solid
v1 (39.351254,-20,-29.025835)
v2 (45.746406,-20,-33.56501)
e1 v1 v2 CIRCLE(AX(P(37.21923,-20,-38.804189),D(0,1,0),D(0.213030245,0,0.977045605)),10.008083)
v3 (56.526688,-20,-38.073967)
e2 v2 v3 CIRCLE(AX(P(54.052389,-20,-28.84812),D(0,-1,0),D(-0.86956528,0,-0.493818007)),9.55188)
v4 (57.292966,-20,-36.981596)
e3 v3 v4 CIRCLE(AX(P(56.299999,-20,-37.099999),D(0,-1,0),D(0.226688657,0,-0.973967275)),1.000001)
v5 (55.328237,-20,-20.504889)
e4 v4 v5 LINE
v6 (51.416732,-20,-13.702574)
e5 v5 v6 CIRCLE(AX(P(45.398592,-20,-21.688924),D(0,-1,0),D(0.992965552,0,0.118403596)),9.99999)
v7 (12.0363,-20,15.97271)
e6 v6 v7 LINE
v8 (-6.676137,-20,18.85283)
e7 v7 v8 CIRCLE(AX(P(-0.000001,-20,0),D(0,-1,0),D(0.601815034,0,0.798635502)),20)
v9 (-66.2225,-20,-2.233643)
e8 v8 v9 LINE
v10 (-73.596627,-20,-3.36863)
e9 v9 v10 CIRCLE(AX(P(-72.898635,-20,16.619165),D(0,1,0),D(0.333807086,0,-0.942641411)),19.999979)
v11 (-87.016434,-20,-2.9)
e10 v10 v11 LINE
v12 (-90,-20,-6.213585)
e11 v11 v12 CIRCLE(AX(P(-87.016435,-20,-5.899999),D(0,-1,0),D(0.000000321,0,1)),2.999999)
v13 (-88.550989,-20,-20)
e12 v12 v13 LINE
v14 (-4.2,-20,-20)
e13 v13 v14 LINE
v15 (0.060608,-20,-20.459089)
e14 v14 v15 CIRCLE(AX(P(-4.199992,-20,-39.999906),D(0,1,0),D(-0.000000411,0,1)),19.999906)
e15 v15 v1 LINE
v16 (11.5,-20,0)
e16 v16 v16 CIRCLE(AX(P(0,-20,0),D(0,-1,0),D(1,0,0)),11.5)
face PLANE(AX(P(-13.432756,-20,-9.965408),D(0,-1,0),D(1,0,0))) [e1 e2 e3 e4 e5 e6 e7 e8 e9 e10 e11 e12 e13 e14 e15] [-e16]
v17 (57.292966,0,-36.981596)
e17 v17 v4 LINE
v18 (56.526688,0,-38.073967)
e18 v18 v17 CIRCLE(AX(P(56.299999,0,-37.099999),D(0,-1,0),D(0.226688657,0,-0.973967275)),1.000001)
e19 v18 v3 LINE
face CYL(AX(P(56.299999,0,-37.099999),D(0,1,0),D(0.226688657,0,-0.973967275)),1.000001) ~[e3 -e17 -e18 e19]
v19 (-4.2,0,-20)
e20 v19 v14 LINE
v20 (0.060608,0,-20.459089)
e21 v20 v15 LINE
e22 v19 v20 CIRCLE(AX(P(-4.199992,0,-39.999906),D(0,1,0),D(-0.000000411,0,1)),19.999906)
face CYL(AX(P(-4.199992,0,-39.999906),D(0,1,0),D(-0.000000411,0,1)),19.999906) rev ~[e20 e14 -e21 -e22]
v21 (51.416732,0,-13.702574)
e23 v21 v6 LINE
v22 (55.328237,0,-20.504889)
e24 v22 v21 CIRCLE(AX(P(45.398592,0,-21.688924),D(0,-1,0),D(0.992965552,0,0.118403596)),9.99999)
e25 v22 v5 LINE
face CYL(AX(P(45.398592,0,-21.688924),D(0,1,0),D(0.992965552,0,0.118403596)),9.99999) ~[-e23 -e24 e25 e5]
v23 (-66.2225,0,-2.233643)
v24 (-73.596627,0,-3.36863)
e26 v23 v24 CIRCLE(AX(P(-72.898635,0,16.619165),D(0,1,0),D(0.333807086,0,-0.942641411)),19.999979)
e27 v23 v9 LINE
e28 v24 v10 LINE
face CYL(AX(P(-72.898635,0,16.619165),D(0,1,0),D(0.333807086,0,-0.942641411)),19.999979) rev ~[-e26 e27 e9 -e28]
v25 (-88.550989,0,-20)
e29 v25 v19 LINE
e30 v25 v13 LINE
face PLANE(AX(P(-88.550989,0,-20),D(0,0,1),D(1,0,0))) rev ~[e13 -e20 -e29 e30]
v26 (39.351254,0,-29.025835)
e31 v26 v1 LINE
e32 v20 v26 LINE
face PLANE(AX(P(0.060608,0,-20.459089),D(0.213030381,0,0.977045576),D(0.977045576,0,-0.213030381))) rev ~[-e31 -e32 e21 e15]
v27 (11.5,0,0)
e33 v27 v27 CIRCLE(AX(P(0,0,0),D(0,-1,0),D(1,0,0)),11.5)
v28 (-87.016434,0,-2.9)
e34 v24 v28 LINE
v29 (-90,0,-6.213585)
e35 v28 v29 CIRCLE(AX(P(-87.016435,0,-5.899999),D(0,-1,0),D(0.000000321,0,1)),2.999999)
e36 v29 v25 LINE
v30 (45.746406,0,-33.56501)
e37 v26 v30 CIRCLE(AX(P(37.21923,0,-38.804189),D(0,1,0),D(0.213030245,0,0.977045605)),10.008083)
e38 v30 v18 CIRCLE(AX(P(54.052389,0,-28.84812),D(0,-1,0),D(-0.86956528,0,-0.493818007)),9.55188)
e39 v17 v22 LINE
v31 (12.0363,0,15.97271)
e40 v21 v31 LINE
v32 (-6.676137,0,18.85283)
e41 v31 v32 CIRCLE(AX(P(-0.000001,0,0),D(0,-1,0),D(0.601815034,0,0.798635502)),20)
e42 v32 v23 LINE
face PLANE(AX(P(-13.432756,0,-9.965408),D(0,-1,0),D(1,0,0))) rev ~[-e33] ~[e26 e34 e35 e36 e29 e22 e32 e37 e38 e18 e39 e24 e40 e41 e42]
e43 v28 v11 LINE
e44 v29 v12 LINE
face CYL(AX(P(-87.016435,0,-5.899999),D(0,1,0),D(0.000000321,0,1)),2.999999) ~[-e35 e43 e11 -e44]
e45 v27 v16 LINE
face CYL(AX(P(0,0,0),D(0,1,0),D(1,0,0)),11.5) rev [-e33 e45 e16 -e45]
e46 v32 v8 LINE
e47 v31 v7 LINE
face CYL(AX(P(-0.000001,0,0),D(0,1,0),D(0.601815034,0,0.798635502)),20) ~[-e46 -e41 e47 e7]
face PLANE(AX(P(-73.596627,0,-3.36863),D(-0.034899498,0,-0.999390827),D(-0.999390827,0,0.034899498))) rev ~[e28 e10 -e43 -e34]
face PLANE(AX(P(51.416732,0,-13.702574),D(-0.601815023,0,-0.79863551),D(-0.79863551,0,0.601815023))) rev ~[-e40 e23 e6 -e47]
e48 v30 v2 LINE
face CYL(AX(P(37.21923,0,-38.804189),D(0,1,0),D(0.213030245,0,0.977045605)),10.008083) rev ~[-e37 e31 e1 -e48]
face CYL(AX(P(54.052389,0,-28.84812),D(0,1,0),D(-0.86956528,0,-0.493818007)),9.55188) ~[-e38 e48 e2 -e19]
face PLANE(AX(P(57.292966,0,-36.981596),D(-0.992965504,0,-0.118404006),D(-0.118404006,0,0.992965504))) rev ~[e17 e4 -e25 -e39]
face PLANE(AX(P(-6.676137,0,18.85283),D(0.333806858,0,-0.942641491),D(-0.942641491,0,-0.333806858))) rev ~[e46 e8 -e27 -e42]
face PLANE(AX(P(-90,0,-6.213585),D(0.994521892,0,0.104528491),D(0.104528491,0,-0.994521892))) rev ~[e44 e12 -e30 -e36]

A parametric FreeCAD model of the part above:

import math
import FreeCAD as App
import Part
import Sketcher

V = App.Vector

doc = App.newDocument("Part")
body = doc.addObject("PartDesign::Body", "Body")

# Sketch on XZ plane
sketch1 = body.newObject("Sketcher::SketchObject", "Sketch")
sketch1.AttachmentSupport = (doc.getObject("XZ_Plane"), [""])
sketch1.MapMode = "FlatFace"
sketch1.addGeometry(Part.ArcOfCircle(Part.Circle(V(-0.000001, 0, 0), V(0, 0, 1), 20), math.radians(52.999999), math.radians(109.499998)), False)
sketch1.addGeometry(Part.LineSegment(V(-6.676137, 18.85283, 0), V(-66.2225, -2.233643, 0)), False)
sketch1.addGeometry(Part.ArcOfCircle(Part.Circle(V(-72.898635, 16.619165, 0), V(0, 0, 1), 19.999979), math.radians(-92.000009), math.radians(-70.499986)), False)
sketch1.addGeometry(Part.LineSegment(V(-73.596627, -3.36863, 0), V(-87.016434, -2.9, 0)), False)
sketch1.addGeometry(Part.ArcOfCircle(Part.Circle(V(-87.016435, -5.899999, 0), V(0, 0, 1), 2.999999), math.radians(89.999982), math.radians(186.000006)), False)
sketch1.addGeometry(Part.LineSegment(V(-90, -6.213585, 0), V(-88.550989, -20, 0)), False)
sketch1.addGeometry(Part.LineSegment(V(-88.550989, -20, 0), V(-4.2, -20, 0)), False)
sketch1.addGeometry(Part.ArcOfCircle(Part.Circle(V(-4.199992, -39.999906, 0), V(0, 0, 1), 19.999906), math.radians(77.699964), math.radians(90.000024)), False)
sketch1.addGeometry(Part.LineSegment(V(0.060608, -20.459089, 0), V(39.351254, -29.025835, 0)), False)
sketch1.addGeometry(Part.ArcOfCircle(Part.Circle(V(37.21923, -38.804189, 0), V(0, 0, 1), 10.008083), math.radians(31.566965), math.radians(77.700008)), False)
sketch1.addGeometry(Part.ArcOfCircle(Part.Circle(V(54.052389, -28.84812, 0), V(0, 0, 1), 9.55188), math.radians(-150.408161), math.radians(-74.98702)), False)
sketch1.addGeometry(Part.ArcOfCircle(Part.Circle(V(56.299999, -37.099999, 0), V(0, 0, 1), 1.000001), math.radians(-76.897803), math.radians(6.799907)), False)
sketch1.addGeometry(Part.LineSegment(V(57.292966, -36.981596, 0), V(55.328237, -20.504889, 0)), False)
sketch1.addGeometry(Part.ArcOfCircle(Part.Circle(V(45.398592, -21.688924, 0), V(0, 0, 1), 9.99999), math.radians(6.799979), math.radians(53.000026)), False)
sketch1.addGeometry(Part.LineSegment(V(51.416732, -13.702574, 0), V(12.0363, 15.97271, 0)), False)
sketch1.addGeometry(Part.Circle(V(0, 0, 0), V(0, 0, 1), 11.5), False)
sketch1.addConstraint(Sketcher.Constraint("Coincident", 0, 2, 1, 1))
sketch1.addConstraint(Sketcher.Constraint("Coincident", 1, 2, 2, 2))
sketch1.addConstraint(Sketcher.Constraint("Coincident", 2, 1, 3, 1))
sketch1.addConstraint(Sketcher.Constraint("Coincident", 3, 2, 4, 1))
sketch1.addConstraint(Sketcher.Constraint("Coincident", 4, 2, 5, 1))
sketch1.addConstraint(Sketcher.Constraint("Coincident", 5, 2, 6, 1))
sketch1.addConstraint(Sketcher.Constraint("Coincident", 6, 2, 7, 2))
sketch1.addConstraint(Sketcher.Constraint("Coincident", 7, 1, 8, 1))
sketch1.addConstraint(Sketcher.Constraint("Coincident", 8, 2, 9, 2))
sketch1.addConstraint(Sketcher.Constraint("Coincident", 9, 1, 10, 1))
sketch1.addConstraint(Sketcher.Constraint("Coincident", 10, 2, 11, 1))
sketch1.addConstraint(Sketcher.Constraint("Coincident", 11, 2, 12, 1))
sketch1.addConstraint(Sketcher.Constraint("Coincident", 12, 2, 13, 1))
sketch1.addConstraint(Sketcher.Constraint("Coincident", 13, 2, 14, 1))
sketch1.addConstraint(Sketcher.Constraint("Coincident", 14, 2, 0, 1))
sketch1.addConstraint(Sketcher.Constraint("Horizontal", 6))
sketch1.addConstraint(Sketcher.Constraint("Coincident", 0, 3, -1, 1))
sketch1.addConstraint(Sketcher.Constraint("Coincident", 15, 3, -1, 1))
sketch1.addConstraint(Sketcher.Constraint("Diameter", 15, 23.0))
sketch1.addConstraint(Sketcher.Constraint("Radius", 0, 20.0))
sketch1.addConstraint(Sketcher.Constraint("Radius", 4, 2.999999))
sketch1.addConstraint(Sketcher.Constraint("Radius", 11, 1.000001))
sketch1.addConstraint(Sketcher.Constraint("DistanceX", 4, 2, -1, 1, 90.0))
sketch1.addConstraint(Sketcher.Constraint("DistanceY", 5, 2, -1, 1, 20.0))
sketch1.addConstraint(Sketcher.Constraint("DistanceY", 4, 3, -1, 1, 5.899999))
sketch1.addConstraint(Sketcher.Constraint("DistanceX", -1, 1, 11, 3, 56.299999))
sketch1.addConstraint(Sketcher.Constraint("DistanceY", 11, 3, -1, 1, 37.099999))
sketch1.addConstraint(Sketcher.Constraint("DistanceX", 6, 2, -1, 1, 4.2))
sketch1.addConstraint(Sketcher.Constraint("Radius", 2, 19.999979))
sketch1.addConstraint(Sketcher.Constraint("Radius", 10, 9.55188))
sketch1.addConstraint(Sketcher.Constraint("Radius", 13, 9.99999))
sketch1.addConstraint(Sketcher.Constraint("Radius", 7, 19.999906))
sketch1.addConstraint(Sketcher.Constraint("Radius", 9, 10.008083))
sketch1.addConstraint(Sketcher.Constraint("DistanceX", 6, 1, 6, 2, 84.350989))
sketch1.addConstraint(Sketcher.Constraint("DistanceX", 1, 2, -1, 1, 66.2225))
sketch1.addConstraint(Sketcher.Constraint("DistanceX", -1, 1, 14, 2, 12.0363))
sketch1.addConstraint(Sketcher.Constraint("DistanceX", 4, 3, 2, 3, 14.1178))
sketch1.addConstraint(Sketcher.Constraint("DistanceX", 3, 2, 2, 3, 14.117799))
sketch1.addConstraint(Sketcher.Constraint("DistanceX", 7, 3, 7, 1, 4.2606))
sketch1.addConstraint(Sketcher.Constraint("DistanceX", 10, 3, 10, 2, 2.474299))
sketch1.addConstraint(Sketcher.Constraint("Distance", 1, 63.169682))
sketch1.addConstraint(Sketcher.Constraint("Distance", 8, 40.213729))
sketch1.addConstraint(Sketcher.Constraint("DistanceX", 7, 3, -1, 1, 4.199992))
sketch1.addConstraint(Sketcher.Constraint("DistanceX", -1, 1, 9, 3, 37.21923))
sketch1.addConstraint(Sketcher.Constraint("DistanceY", 9, 3, -1, 1, 38.804189))
sketch1.addConstraint(Sketcher.Constraint("DistanceX", -1, 1, 10, 3, 54.052389))
sketch1.addConstraint(Sketcher.Constraint("DistanceX", -1, 1, 13, 3, 45.398592))
sketch1.addConstraint(Sketcher.Constraint("DistanceY", -1, 1, 0, 2, 18.85283))
sketch1.addConstraint(Sketcher.Constraint("DistanceY", 2, 1, -1, 1, 3.36863))
sketch1.addConstraint(Sketcher.Constraint("DistanceY", 12, 2, -1, 1, 20.504889))
sketch1.addConstraint(Sketcher.Constraint("DistanceX", -1, 1, 13, 2, 51.416732))
sketch1.addConstraint(Sketcher.Constraint("DistanceY", 7, 3, 2, 3, 56.619071))
sketch1.addConstraint(Sketcher.Constraint("DistanceY", 7, 3, 13, 3, 18.310982))
sketch1.addConstraint(Sketcher.Constraint("DistanceX", 10, 2, 11, 2, 0.766278))
pad1 = body.newObject("PartDesign::Pad", "Pad")
pad1.Profile = sketch1
pad1.Length = 20

doc.recompute()
